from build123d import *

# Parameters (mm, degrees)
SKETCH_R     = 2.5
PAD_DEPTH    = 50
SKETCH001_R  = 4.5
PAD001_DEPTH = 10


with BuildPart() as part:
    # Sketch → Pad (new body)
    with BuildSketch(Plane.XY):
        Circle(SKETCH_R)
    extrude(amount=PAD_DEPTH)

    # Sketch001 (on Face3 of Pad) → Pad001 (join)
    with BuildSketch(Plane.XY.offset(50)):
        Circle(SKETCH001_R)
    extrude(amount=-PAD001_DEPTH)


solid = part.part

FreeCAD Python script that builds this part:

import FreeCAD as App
import Part
import Sketcher
from FreeCAD import Vector
Q = App.Units.Quantity

doc = App.newDocument("Part")
params = doc.addObject("Spreadsheet::Sheet", "Params")
for row, (alias, value) in enumerate([
    ("sketch1_diameter", "5 mm"),
    ("pad1_length", "50 mm"),
    ("sketch2_diameter", "9 mm"),
    ("pad2_length", "10 mm"),
], start=1):
    params.set(f"A{row}", alias)
    params.set(f"B{row}", "=" + value)
    params.setAlias(f"B{row}", alias)

body = doc.addObject("PartDesign::Body", "Body")

# Sketch on XY plane
sketch1 = doc.addObject("Sketcher::SketchObject", "Sketch")
body.addObject(sketch1)
sketch1.AttachmentSupport = (doc.XY_Plane, [""])
sketch1.MapMode = "FlatFace"
sketch1.addGeometry(Part.Circle(Vector(0, 0, 0), Vector(0, 0, 1), 2.5), False)
sketch1.addConstraint(Sketcher.Constraint("Coincident", 0, 3, -1, 1))
sketch1.addConstraint(Sketcher.Constraint("Diameter", 0, Q("5 mm")))
sketch1.setExpression("Constraints[1]", "Params.sketch1_diameter")
pad1 = doc.addObject("PartDesign::Pad", "Pad")
body.addObject(pad1)
pad1.Profile = sketch1
pad1.setExpression("Length", "Params.pad1_length")

# Sketch on XY plane
sketch2 = doc.addObject("Sketcher::SketchObject", "Sketch001")
body.addObject(sketch2)
sketch2.AttachmentSupport = (doc.XY_Plane, [""])
sketch2.MapMode = "FlatFace"
sketch2.AttachmentOffset = App.Placement(Vector(0, 0, 50), App.Rotation())
sketch2.addGeometry(Part.Circle(Vector(0, 0, 0), Vector(0, 0, 1), 4.5), False)
sketch2.addConstraint(Sketcher.Constraint("Coincident", 0, 3, -1, 1))
sketch2.addConstraint(Sketcher.Constraint("Diameter", 0, Q("9 mm")))
sketch2.setExpression("Constraints[1]", "Params.sketch2_diameter")
pad2 = doc.addObject("PartDesign::Pad", "Pad001")
body.addObject(pad2)
pad2.Profile = sketch2
pad2.setExpression("Length", "Params.pad2_length")
pad2.Reversed = True

doc.recompute()
